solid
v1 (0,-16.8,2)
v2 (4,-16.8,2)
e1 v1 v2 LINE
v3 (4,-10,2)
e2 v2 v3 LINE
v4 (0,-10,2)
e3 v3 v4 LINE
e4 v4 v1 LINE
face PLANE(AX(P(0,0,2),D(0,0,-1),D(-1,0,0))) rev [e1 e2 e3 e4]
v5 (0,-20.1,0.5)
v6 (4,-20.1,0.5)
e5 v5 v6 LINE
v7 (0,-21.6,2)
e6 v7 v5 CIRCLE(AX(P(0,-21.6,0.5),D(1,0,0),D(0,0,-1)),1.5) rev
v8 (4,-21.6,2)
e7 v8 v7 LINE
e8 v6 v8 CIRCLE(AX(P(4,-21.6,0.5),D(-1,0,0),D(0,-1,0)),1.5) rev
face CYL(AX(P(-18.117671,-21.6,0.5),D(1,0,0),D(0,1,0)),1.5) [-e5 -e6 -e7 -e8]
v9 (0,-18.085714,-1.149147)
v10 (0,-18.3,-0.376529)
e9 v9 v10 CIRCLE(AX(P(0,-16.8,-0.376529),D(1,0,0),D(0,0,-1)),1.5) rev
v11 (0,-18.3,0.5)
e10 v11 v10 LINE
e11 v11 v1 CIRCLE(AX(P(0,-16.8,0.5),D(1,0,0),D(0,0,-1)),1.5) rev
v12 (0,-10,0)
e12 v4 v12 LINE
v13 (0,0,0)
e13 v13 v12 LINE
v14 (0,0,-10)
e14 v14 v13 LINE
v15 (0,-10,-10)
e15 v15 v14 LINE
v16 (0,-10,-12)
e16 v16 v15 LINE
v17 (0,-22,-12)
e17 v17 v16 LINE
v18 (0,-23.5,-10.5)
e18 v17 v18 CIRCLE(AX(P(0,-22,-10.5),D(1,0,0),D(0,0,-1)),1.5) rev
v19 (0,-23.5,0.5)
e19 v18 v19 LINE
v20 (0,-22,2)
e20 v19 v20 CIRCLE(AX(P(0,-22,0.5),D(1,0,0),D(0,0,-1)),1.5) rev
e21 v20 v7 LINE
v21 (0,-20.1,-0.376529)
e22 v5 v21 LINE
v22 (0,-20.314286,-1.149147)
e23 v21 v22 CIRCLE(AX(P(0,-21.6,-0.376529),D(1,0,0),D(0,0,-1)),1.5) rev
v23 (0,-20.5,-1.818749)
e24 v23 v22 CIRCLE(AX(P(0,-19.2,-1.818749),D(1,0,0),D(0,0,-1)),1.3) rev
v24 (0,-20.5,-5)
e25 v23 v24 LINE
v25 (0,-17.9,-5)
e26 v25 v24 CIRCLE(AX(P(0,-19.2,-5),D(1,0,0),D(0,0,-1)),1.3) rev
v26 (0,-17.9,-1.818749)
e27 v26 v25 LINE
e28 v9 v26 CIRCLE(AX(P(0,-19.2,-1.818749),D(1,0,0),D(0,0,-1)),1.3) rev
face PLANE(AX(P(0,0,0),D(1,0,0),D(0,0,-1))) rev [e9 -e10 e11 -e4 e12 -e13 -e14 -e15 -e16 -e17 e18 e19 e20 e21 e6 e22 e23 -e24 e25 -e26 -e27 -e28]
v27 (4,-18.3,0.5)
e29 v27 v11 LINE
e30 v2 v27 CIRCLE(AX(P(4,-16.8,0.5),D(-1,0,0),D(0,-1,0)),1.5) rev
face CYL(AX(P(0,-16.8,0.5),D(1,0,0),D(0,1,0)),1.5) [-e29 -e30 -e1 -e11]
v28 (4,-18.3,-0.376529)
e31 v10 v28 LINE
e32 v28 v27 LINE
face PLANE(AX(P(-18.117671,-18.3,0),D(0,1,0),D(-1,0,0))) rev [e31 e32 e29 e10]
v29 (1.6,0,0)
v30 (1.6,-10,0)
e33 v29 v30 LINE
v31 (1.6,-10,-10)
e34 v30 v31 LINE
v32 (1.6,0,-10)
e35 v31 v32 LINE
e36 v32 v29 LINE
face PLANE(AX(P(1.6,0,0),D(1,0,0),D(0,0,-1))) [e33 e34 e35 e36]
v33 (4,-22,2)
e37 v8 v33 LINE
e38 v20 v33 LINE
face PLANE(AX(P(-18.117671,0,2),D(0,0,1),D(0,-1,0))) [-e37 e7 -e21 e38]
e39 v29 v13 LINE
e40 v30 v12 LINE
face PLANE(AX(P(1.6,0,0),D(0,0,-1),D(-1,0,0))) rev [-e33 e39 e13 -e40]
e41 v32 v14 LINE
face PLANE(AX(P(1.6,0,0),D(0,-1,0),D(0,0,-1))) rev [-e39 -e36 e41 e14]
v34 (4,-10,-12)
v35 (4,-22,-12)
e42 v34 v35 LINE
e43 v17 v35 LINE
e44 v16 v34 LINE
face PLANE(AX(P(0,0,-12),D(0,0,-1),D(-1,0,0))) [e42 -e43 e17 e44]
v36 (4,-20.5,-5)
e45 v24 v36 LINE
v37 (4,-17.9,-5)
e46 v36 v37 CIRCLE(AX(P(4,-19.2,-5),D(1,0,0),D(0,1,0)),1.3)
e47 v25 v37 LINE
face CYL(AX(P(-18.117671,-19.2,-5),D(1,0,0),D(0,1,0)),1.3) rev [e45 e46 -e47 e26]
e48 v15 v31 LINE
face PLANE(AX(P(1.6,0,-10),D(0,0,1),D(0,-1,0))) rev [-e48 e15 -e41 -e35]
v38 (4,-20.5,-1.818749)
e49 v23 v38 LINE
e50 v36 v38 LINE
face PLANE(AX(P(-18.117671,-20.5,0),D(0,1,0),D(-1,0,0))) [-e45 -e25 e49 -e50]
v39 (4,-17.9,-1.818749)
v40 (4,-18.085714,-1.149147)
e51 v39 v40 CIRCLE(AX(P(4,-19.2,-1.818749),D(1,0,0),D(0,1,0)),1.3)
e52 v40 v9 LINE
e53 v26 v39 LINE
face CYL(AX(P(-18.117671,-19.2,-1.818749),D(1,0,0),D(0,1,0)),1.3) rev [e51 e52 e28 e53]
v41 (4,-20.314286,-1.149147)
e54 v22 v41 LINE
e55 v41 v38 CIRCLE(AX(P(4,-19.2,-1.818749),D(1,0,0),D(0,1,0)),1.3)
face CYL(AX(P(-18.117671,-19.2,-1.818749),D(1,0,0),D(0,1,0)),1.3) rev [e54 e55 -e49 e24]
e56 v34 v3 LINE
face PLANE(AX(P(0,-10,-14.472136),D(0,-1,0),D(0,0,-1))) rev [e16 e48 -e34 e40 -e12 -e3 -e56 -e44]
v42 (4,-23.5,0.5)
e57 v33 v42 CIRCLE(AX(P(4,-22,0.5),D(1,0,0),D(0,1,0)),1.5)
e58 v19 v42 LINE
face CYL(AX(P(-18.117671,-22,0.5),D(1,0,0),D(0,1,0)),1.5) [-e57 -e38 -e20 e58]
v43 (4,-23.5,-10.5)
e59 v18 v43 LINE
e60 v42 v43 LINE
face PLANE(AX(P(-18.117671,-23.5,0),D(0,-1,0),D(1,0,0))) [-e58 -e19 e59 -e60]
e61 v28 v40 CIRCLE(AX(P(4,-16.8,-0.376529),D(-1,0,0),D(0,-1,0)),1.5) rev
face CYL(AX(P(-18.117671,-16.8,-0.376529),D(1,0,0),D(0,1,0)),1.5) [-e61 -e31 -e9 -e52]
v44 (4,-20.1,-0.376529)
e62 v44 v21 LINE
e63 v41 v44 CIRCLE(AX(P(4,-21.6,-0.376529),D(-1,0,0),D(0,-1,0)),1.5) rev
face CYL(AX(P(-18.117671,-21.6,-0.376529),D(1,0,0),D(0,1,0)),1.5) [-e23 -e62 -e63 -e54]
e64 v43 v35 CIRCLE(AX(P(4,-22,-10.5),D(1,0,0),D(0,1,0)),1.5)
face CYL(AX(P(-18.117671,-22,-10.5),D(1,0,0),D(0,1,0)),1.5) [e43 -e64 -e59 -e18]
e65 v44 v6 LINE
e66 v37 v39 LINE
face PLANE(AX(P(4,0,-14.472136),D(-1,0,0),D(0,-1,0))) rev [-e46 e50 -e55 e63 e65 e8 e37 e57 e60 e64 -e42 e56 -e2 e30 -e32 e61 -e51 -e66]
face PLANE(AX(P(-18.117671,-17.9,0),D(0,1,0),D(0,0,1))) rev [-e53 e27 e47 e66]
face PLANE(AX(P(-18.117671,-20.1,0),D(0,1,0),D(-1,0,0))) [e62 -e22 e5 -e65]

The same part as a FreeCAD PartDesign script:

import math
import FreeCAD as App
import Part
import Sketcher

V = App.Vector


def edges_at(feature, points):
    """Names of the edges that pass closest to the given points."""
    edges = feature.Shape.Edges
    near = lambda p: min(range(len(edges)), key=lambda i: edges[i].distToShape(Part.Vertex(*p))[0])
    return sorted({f"Edge{near(p) + 1}" for p in points})


def add_polygon(sketch, points):
    """Adds a closed chain of lines whose ends are joined by coincident constraints."""
    first, n = sketch.GeometryCount, len(points)
    for a, b in zip(points, points[1:] + points[:1]):
        sketch.addGeometry(Part.LineSegment(App.Vector(*a, 0), App.Vector(*b, 0)), False)
    for i in range(n):
        sketch.addConstraint(Sketcher.Constraint("Coincident", first + i, 2, first + (i + 1) % n, 1))

doc = App.newDocument("Part")
body = doc.addObject("PartDesign::Body", "Body")

# Sketch on YZ plane
sketch1 = doc.addObject("Sketcher::SketchObject", "Sketch")
body.addObject(sketch1)
sketch1.AttachmentSupport = (doc.YZ_Plane, [""])
sketch1.MapMode = "FlatFace"
add_polygon(sketch1, [(0, 0), (-10, 0), (-10, -10), (0, -10)])  # lines 0-3
sketch1.addConstraint(Sketcher.Constraint("Horizontal", 0))
sketch1.addConstraint(Sketcher.Constraint("Vertical", 1))
sketch1.addConstraint(Sketcher.Constraint("Horizontal", 2))
sketch1.addConstraint(Sketcher.Constraint("Vertical", 3))
sketch1.addConstraint(Sketcher.Constraint("Coincident", 3, 2, -1, 1))
sketch1.addConstraint(Sketcher.Constraint("Equal", 2, 1))
sketch1.addConstraint(Sketcher.Constraint("DistanceX", 0, 2, 0, 1, 10.0))
pad1 = doc.addObject("PartDesign::Pad", "Pad")
body.addObject(pad1)
pad1.Profile = sketch1
pad1.Length = 1.6

# Sketch on XY plane
sketch2 = doc.addObject("Sketcher::SketchObject", "Sketch001")
body.addObject(sketch2)
sketch2.AttachmentSupport = (doc.XY_Plane, [""])
sketch2.MapMode = "FlatFace"
add_polygon(sketch2, [(0, -12), (4, -12), (4, -10), (0, -10)])  # lines 0-3
sketch2.addConstraint(Sketcher.Constraint("Horizontal", 0))
sketch2.addConstraint(Sketcher.Constraint("Vertical", 1))
sketch2.addConstraint(Sketcher.Constraint("Horizontal", 2))
sketch2.addConstraint(Sketcher.Constraint("Vertical", 3))
sketch2.addConstraint(Sketcher.Constraint("PointOnObject", 2, 2, -2))
sketch2.addConstraint(Sketcher.Constraint("DistanceX", 0, 1, 0, 2, 4.0))
sketch2.addConstraint(Sketcher.Constraint("DistanceY", 1, 1, 1, 2, 2.0))
sketch2.addConstraint(Sketcher.Constraint("DistanceY", 0, 2, -1, 1, 12.0))
pad2 = doc.addObject("PartDesign::Pad", "Pad001")
body.addObject(pad2)
pad2.Profile = sketch2
pad2.Length = 10
pad2.Reversed = True

# Sketch on XY plane
sketch3 = doc.addObject("Sketcher::SketchObject", "Sketch002")
body.addObject(sketch3)
sketch3.AttachmentSupport = (doc.XY_Plane, [""])
sketch3.MapMode = "FlatFace"
add_polygon(sketch3, [(0, -10), (0, -12), (4, -12), (4, -10)])  # lines 0-3
sketch3.addConstraint(Sketcher.Constraint("Vertical", 0))
sketch3.addConstraint(Sketcher.Constraint("Horizontal", 1))
sketch3.addConstraint(Sketcher.Constraint("Vertical", 2))
sketch3.addConstraint(Sketcher.Constraint("Horizontal", 3))
sketch3.addConstraint(Sketcher.Constraint("PointOnObject", 0, 2, -2))
sketch3.addConstraint(Sketcher.Constraint("DistanceX", 1, 1, 1, 2, 4.0))
sketch3.addConstraint(Sketcher.Constraint("DistanceY", 0, 2, 0, 1, 2.0))
sketch3.addConstraint(Sketcher.Constraint("DistanceY", 0, 2, -1, 1, 12.0))
pad3 = doc.addObject("PartDesign::Pad", "Pad002")
body.addObject(pad3)
pad3.Profile = sketch3
pad3.Length = 2

# Sketch on XY plane
sketch4 = doc.addObject("Sketcher::SketchObject", "Sketch003")
body.addObject(sketch4)
sketch4.AttachmentSupport = (doc.XY_Plane, [""])
sketch4.MapMode = "FlatFace"
sketch4.AttachmentOffset = App.Placement(V(0, 0, -10), App.Rotation())
add_polygon(sketch4, [(4, -10), (4, -12), (0, -12), (0, -10)])  # lines 0-3
sketch4.addConstraint(Sketcher.Constraint("Vertical", 0))
sketch4.addConstraint(Sketcher.Constraint("Horizontal", 1))
sketch4.addConstraint(Sketcher.Constraint("Vertical", 2))
sketch4.addConstraint(Sketcher.Constraint("Horizontal", 3))
sketch4.addConstraint(Sketcher.Constraint("PointOnObject", 1, 2, -2))
sketch4.addConstraint(Sketcher.Constraint("DistanceX", 1, 2, 1, 1, 4.0))
sketch4.addConstraint(Sketcher.Constraint("DistanceY", 0, 2, 0, 1, 2.0))
sketch4.addConstraint(Sketcher.Constraint("DistanceY", 0, 2, -1, 1, 12.0))
pad4 = doc.addObject("PartDesign::Pad", "Pad003")
body.addObject(pad4)
pad4.Profile = sketch4
pad4.Length = 2
pad4.Reversed = True

# Sketch on YZ plane
sketch5 = doc.addObject("Sketcher::SketchObject", "Sketch004")
body.addObject(sketch5)
sketch5.AttachmentSupport = (doc.YZ_Plane, [""])
sketch5.MapMode = "FlatFace"
sketch5.AttachmentOffset = App.Placement(V(0, 0, 4), App.Rotation())
sketch5.addGeometry(Part.LineSegment(V(-12, -12, 0), V(-12, 2, 0)), False)
sketch5.addGeometry(Part.LineSegment(V(-12, 2, 0), V(-18.3, 2, 0)), False)
sketch5.addGeometry(Part.LineSegment(V(-18.3, 2, 0), V(-18.3, -0.9, 0)), False)
sketch5.addGeometry(Part.ArcOfCircle(Part.Circle(V(-19.2, -1.8, 0), V(0, 0, 1), 1.3), math.radians(0), math.radians(46)), False)
sketch5.addGeometry(Part.LineSegment(V(-17.9, -1.8, 0), V(-17.9, -5, 0)), False)
sketch5.addGeometry(Part.ArcOfCircle(Part.Circle(V(-19.2, -5, 0), V(0, 0, 1), 1.3), math.radians(-90), math.radians(0)), False)
sketch5.addGeometry(Part.ArcOfCircle(Part.Circle(V(-19.2, -5, 0), V(0, 0, 1), 1.3), math.radians(180), math.radians(270)), False)
sketch5.addGeometry(Part.LineSegment(V(-20.5, -5, 0), V(-20.5, -1.8, 0)), False)
sketch5.addGeometry(Part.ArcOfCircle(Part.Circle(V(-19.2, -1.8, 0), V(0, 0, 1), 1.3), math.radians(134), math.radians(180)), False)
sketch5.addGeometry(Part.LineSegment(V(-20.1, -0.9, 0), V(-20.1, 2, 0)), False)
sketch5.addGeometry(Part.LineSegment(V(-20.1, 2, 0), V(-22, 2, 0)), False)
sketch5.addGeometry(Part.ArcOfCircle(Part.Circle(V(-22, 0.5, 0), V(0, 0, 1), 1.5), math.radians(90), math.radians(180)), False)
sketch5.addGeometry(Part.LineSegment(V(-23.5, 0.5, 0), V(-23.5, -10.5, 0)), False)
sketch5.addGeometry(Part.ArcOfCircle(Part.Circle(V(-22, -10.5, 0), V(0, 0, 1), 1.5), math.radians(180), math.radians(270)), False)
sketch5.addGeometry(Part.LineSegment(V(-22, -12, 0), V(-12, -12, 0)), False)
sketch5.addConstraint(Sketcher.Constraint("Coincident", 0, 2, 1, 1))
sketch5.addConstraint(Sketcher.Constraint("Coincident", 1, 2, 2, 1))
sketch5.addConstraint(Sketcher.Constraint("Coincident", 2, 2, 3, 2))
sketch5.addConstraint(Sketcher.Constraint("Tangent", 3, 1, 4, 1))
sketch5.addConstraint(Sketcher.Constraint("Tangent", 4, 2, 5, 2))
sketch5.addConstraint(Sketcher.Constraint("Tangent", 5, 1, 6, 2))
sketch5.addConstraint(Sketcher.Constraint("Tangent", 6, 1, 7, 1))
sketch5.addConstraint(Sketcher.Constraint("Tangent", 7, 2, 8, 2))
sketch5.addConstraint(Sketcher.Constraint("Coincident", 8, 1, 9, 1))
sketch5.addConstraint(Sketcher.Constraint("Coincident", 9, 2, 10, 1))
sketch5.addConstraint(Sketcher.Constraint("Tangent", 10, 2, 11, 1))
sketch5.addConstraint(Sketcher.Constraint("Tangent", 11, 2, 12, 1))
sketch5.addConstraint(Sketcher.Constraint("Tangent", 12, 2, 13, 1))
sketch5.addConstraint(Sketcher.Constraint("Tangent", 13, 2, 14, 1))
sketch5.addConstraint(Sketcher.Constraint("Coincident", 14, 2, 0, 1))
sketch5.addConstraint(Sketcher.Constraint("Vertical", 0))
sketch5.addConstraint(Sketcher.Constraint("Horizontal", 1))
sketch5.addConstraint(Sketcher.Constraint("Vertical", 2))
sketch5.addConstraint(Sketcher.Constraint("Vertical", 4))
sketch5.addConstraint(Sketcher.Constraint("Vertical", 7))
sketch5.addConstraint(Sketcher.Constraint("Vertical", 9))
sketch5.addConstraint(Sketcher.Constraint("Horizontal", 10))
sketch5.addConstraint(Sketcher.Constraint("Vertical", 12))
sketch5.addConstraint(Sketcher.Constraint("Horizontal", 14))
sketch5.addConstraint(Sketcher.Constraint("Coincident", 8, 3, 3, 3))
sketch5.addConstraint(Sketcher.Constraint("Equal", 3, 5))
sketch5.addConstraint(Sketcher.Constraint("Equal", 5, 6))
sketch5.addConstraint(Sketcher.Constraint("Equal", 11, 13))
sketch5.addConstraint(Sketcher.Constraint("Horizontal", 2, 2, 8, 1))
sketch5.addConstraint(Sketcher.Constraint("Horizontal", 1, 2, 9, 2))
sketch5.addConstraint(Sketcher.Constraint("Vertical", 8, 3, 5, 1))
sketch5.addConstraint(Sketcher.Constraint("Radius", 3, 1.3))
sketch5.addConstraint(Sketcher.Constraint("Radius", 11, 1.5))
sketch5.addConstraint(Sketcher.Constraint("DistanceX", 14, 1, 14, 2, 10.0))
sketch5.addConstraint(Sketcher.Constraint("DistanceY", 0, 1, 0, 2, 14.0))
sketch5.addConstraint(Sketcher.Constraint("DistanceX", 1, 2, 1, 1, 6.3))
sketch5.addConstraint(Sketcher.Constraint("DistanceX", 10, 2, 10, 1, 1.9))
sketch5.addConstraint(Sketcher.Constraint("DistanceY", 5, 3, -1, 1, 5.0))
sketch5.addConstraint(Sketcher.Constraint("DistanceX", 11, 3, -1, 1, 22.0))
sketch5.addConstraint(Sketcher.Constraint("DistanceY", -1, 1, 0, 2, 2.0))
sketch5.addConstraint(Sketcher.Constraint("DistanceY", 4, 2, 4, 1, 3.181251))
pad5 = doc.addObject("PartDesign::Pad", "Pad004")
body.addObject(pad5)
pad5.Profile = sketch5
pad5.Length = 4
pad5.Reversed = True
doc.recompute()

fillet = doc.addObject("PartDesign::Fillet", "Fillet")
body.addObject(fillet)
fillet.Base = (pad5, edges_at(pad5, [
    (2, -18.3, -0.881),
    (2, -18.3, 2),
    (2, -20.1, 2),
    (2, -20.1, -0.881),
]))
fillet.Radius = 1.5

doc.recompute()
